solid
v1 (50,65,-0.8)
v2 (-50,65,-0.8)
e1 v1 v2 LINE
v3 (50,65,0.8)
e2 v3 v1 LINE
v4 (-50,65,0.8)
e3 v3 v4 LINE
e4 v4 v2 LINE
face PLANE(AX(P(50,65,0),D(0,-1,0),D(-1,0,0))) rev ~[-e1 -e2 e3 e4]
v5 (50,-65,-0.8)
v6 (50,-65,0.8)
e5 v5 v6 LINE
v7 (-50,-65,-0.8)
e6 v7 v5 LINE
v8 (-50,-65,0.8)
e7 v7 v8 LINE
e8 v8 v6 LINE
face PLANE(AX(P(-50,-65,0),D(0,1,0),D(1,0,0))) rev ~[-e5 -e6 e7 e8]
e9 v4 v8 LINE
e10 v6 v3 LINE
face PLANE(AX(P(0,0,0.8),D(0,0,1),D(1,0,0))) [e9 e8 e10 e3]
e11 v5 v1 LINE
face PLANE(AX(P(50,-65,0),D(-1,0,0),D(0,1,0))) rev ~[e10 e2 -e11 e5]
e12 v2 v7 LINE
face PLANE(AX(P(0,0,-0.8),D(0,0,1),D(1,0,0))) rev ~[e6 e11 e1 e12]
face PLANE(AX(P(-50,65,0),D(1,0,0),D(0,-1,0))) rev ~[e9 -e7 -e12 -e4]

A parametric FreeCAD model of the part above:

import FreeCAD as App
import Part
import Sketcher
from FreeCAD import Vector
Q = App.Units.Quantity

doc = App.newDocument("Part")
params = doc.addObject("Spreadsheet::Sheet", "Params")
for row, (alias, value) in enumerate([
    ("sketch1_width", "3.937 in"),
    ("pad1_length", "0.0629921 in"),
], start=1):
    params.set(f"A{row}", alias)
    params.set(f"B{row}", "=" + value)
    params.setAlias(f"B{row}", alias)

body = doc.addObject("PartDesign::Body", "Body")

# Sketch on XY plane
sketch1 = doc.addObject("Sketcher::SketchObject", "Sketch")
body.addObject(sketch1)
sketch1.AttachmentSupport = (doc.XY_Plane, [""])
sketch1.MapMode = "FlatFace"
sketch1.addGeometry([
    Part.LineSegment(Vector(-50, 65, 0), Vector(-50, -65, 0)),
    Part.LineSegment(Vector(-50, -65, 0), Vector(50, -65, 0)),
    Part.LineSegment(Vector(50, -65, 0), Vector(50, 65, 0)),
    Part.LineSegment(Vector(50, 65, 0), Vector(-50, 65, 0)),
], False)
sketch1.addConstraint([
    Sketcher.Constraint("Coincident", 0, 2, 1, 1),
    Sketcher.Constraint("Coincident", 1, 2, 2, 1),
    Sketcher.Constraint("Coincident", 2, 2, 3, 1),
    Sketcher.Constraint("Coincident", 3, 2, 0, 1),
    Sketcher.Constraint("Vertical", 0),
    Sketcher.Constraint("Horizontal", 1),
    Sketcher.Constraint("Vertical", 2),
    Sketcher.Constraint("Horizontal", 3),
    Sketcher.Constraint("Symmetric", 0, 2, 2, 2, -1, 1),
    Sketcher.Constraint("DistanceX", 1, 1, 1, 2, Q("3.937 in")),
    Sketcher.Constraint("DistanceY", 0, 2, 0, 1, Q("5.1181 in")),
])
sketch1.setExpression("Constraints[9]", "Params.sketch1_width")
pad1 = doc.addObject("PartDesign::Pad", "Pad")
body.addObject(pad1)
pad1.Profile = sketch1
pad1.setExpression("Length", "Params.pad1_length")
pad1.Midplane = True

doc.recompute()
